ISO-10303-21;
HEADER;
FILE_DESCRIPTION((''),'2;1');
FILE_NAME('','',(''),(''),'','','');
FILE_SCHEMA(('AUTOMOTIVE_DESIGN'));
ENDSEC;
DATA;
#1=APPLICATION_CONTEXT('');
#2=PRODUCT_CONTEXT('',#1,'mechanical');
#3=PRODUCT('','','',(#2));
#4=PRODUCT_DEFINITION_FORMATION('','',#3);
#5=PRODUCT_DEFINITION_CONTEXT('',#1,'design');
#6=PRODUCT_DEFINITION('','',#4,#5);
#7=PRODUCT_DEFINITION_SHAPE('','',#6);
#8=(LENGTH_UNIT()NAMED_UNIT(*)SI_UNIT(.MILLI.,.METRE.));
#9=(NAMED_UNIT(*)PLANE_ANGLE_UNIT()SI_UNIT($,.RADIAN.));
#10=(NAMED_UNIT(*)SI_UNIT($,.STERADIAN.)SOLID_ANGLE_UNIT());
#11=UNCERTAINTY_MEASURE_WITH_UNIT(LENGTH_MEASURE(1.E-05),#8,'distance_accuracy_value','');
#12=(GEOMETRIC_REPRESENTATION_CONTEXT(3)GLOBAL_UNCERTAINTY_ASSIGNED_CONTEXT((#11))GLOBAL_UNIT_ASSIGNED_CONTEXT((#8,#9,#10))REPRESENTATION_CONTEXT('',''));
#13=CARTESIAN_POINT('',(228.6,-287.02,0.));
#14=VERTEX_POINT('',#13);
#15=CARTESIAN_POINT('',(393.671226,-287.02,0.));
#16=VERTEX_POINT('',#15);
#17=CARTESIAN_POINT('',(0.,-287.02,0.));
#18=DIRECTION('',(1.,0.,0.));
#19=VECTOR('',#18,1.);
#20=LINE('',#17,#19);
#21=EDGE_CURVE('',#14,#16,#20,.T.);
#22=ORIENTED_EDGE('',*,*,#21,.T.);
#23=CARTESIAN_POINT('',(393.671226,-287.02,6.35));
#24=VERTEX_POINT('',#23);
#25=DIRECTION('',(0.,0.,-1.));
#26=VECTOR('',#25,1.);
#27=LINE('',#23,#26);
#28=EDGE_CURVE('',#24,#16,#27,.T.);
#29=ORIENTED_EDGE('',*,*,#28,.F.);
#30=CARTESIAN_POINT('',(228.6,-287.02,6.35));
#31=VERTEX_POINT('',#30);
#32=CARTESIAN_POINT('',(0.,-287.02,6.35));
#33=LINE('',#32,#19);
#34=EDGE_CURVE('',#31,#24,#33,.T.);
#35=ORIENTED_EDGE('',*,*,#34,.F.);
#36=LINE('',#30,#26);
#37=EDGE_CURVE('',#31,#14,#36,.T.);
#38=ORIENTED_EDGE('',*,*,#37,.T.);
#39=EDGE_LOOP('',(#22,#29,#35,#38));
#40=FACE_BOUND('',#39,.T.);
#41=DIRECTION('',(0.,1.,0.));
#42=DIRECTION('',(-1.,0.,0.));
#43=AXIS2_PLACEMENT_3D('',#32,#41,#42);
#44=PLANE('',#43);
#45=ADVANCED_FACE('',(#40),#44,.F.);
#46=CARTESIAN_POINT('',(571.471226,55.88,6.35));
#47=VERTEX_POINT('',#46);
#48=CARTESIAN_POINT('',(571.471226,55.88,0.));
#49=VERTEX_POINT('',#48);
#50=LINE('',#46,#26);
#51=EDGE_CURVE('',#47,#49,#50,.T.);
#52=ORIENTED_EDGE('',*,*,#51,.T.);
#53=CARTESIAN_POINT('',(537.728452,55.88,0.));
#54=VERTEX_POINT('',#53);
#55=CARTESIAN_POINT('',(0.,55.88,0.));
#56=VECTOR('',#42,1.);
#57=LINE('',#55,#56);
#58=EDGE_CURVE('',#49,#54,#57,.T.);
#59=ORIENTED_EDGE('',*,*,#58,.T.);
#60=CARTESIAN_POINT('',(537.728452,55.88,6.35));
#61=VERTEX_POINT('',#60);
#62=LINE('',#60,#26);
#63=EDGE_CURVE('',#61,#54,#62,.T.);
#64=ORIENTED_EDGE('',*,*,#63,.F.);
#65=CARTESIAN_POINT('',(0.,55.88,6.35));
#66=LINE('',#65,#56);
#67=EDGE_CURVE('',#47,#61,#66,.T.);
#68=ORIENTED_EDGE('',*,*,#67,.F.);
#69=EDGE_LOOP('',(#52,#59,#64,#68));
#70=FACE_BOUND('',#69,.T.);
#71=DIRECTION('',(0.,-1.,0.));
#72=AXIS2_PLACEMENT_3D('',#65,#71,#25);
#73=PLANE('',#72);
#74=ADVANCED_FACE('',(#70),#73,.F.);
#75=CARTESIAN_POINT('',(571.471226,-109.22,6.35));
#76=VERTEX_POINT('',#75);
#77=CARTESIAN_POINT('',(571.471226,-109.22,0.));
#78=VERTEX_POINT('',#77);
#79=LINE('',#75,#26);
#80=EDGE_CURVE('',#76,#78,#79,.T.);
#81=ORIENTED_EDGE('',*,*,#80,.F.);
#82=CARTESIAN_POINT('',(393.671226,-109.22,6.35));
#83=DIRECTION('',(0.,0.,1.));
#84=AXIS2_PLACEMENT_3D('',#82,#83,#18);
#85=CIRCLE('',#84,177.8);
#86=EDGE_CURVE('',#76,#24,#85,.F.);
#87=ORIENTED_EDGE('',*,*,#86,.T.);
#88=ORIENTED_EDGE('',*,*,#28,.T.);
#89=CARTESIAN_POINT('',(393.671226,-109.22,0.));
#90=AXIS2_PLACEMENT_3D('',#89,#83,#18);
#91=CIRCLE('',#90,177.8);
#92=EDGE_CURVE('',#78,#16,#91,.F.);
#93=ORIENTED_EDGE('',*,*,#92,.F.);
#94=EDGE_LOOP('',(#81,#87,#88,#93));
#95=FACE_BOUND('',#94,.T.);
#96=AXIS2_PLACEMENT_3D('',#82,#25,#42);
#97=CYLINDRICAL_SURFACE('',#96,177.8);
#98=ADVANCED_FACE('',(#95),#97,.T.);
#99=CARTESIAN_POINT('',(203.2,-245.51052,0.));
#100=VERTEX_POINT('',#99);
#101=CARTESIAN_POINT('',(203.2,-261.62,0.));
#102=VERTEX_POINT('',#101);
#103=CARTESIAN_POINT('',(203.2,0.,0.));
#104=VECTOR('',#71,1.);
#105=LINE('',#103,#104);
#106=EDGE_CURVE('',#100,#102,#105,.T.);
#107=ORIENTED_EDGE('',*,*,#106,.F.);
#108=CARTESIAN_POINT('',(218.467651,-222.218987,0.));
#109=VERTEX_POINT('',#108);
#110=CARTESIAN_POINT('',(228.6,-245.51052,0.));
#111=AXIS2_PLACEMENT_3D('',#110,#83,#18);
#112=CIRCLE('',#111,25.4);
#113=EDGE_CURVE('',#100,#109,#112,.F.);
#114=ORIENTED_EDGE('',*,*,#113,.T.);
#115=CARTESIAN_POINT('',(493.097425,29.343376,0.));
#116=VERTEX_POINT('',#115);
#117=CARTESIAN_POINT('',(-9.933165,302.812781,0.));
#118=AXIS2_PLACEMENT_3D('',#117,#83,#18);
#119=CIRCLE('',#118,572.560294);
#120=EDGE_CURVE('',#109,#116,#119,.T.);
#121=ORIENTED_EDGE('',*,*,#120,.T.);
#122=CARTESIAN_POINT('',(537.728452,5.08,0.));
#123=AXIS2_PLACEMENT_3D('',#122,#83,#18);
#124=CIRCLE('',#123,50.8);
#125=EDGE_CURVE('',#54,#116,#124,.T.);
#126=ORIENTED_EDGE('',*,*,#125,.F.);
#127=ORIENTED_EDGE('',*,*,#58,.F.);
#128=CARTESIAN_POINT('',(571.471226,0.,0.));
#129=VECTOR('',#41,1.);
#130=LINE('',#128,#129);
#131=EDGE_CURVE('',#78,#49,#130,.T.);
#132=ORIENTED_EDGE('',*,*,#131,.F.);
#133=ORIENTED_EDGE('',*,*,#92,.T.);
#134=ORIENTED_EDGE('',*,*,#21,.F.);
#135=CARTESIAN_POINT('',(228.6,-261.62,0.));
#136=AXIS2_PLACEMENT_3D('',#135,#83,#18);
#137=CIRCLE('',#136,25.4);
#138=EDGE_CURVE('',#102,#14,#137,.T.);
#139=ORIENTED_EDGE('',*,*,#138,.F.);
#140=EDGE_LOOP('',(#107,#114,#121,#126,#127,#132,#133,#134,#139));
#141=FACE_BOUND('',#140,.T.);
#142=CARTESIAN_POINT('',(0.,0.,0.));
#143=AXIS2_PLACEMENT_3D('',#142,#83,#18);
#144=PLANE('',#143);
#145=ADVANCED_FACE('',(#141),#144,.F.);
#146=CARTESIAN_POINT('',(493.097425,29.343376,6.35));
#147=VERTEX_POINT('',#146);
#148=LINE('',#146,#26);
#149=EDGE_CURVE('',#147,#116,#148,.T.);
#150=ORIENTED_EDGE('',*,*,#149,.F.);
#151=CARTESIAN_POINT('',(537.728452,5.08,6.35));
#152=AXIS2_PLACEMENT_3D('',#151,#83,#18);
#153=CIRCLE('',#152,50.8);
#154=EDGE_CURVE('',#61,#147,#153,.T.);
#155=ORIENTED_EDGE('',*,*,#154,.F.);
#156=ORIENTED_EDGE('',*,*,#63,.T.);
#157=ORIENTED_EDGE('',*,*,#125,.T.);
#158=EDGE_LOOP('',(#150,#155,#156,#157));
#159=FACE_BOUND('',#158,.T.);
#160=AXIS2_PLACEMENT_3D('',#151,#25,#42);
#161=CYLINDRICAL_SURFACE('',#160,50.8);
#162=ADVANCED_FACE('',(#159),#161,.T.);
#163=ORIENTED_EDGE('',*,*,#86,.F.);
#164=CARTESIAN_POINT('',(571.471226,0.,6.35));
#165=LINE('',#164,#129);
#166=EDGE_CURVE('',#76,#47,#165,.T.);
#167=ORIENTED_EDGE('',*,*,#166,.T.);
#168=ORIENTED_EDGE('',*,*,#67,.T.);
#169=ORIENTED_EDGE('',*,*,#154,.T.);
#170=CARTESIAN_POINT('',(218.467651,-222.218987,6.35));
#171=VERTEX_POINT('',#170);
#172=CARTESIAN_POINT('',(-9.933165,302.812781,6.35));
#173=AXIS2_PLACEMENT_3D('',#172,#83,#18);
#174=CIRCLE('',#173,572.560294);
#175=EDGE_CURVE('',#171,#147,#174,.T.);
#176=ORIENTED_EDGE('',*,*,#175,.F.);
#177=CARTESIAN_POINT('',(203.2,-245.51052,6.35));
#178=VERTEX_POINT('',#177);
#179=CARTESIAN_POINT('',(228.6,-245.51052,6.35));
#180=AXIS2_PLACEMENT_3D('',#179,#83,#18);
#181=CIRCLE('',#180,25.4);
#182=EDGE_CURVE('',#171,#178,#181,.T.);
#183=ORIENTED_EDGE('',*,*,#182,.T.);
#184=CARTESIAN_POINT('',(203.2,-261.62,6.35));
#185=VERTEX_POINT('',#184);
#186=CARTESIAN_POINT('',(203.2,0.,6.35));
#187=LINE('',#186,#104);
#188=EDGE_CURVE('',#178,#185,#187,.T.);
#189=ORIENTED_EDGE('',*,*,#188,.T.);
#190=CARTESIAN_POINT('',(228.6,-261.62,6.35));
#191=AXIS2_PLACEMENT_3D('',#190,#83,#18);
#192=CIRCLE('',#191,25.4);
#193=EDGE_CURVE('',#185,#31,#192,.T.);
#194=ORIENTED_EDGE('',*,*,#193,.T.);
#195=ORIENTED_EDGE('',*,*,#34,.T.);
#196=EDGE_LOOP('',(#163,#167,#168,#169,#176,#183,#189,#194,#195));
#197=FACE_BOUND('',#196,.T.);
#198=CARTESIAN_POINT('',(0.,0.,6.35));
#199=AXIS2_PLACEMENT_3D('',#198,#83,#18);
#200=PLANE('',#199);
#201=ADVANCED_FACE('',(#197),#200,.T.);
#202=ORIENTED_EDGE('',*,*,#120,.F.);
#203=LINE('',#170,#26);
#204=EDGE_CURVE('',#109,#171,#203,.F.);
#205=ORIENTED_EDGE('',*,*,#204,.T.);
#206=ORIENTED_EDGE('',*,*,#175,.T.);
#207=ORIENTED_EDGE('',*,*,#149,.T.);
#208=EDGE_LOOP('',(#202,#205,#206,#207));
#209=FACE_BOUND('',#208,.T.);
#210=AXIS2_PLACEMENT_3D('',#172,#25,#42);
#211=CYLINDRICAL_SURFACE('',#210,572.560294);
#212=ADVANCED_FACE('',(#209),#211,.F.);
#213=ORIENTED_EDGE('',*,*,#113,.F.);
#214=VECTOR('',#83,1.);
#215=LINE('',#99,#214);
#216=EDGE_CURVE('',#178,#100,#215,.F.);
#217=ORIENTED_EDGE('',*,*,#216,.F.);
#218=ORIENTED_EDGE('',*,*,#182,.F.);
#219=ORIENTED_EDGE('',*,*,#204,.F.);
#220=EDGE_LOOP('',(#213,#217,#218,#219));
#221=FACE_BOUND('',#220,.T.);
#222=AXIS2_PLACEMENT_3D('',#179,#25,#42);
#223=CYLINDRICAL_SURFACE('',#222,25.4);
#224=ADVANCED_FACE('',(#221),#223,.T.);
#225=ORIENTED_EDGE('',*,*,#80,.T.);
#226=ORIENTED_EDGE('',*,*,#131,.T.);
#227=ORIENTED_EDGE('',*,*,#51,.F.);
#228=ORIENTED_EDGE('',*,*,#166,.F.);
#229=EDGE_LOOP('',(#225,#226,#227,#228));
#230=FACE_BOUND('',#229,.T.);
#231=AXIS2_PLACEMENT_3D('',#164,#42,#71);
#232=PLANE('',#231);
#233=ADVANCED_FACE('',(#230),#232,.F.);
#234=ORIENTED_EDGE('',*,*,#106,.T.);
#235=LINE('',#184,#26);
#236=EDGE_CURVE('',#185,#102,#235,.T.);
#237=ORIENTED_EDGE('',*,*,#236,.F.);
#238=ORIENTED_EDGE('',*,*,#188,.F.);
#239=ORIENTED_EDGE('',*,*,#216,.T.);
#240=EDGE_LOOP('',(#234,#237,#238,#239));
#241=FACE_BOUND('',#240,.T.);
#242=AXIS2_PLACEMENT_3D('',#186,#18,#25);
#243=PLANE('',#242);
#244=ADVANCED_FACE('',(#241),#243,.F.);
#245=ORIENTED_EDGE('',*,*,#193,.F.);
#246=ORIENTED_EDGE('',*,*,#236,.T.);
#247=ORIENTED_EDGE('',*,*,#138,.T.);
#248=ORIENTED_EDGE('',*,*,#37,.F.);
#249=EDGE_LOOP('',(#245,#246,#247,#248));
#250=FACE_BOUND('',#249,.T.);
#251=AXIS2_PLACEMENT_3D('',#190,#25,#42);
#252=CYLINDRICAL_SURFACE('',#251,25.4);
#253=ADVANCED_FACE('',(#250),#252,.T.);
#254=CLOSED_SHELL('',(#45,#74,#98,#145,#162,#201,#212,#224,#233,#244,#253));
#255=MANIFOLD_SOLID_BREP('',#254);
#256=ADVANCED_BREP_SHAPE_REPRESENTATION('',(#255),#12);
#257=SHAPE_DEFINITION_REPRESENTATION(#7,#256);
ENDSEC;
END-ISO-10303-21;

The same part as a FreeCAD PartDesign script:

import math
import FreeCAD as App
import Part
import Sketcher

V = App.Vector
Q = App.Units.Quantity


def edges_at(feature, points):
    """Names of the edges that pass closest to the given points."""
    edges = feature.Shape.Edges
    near = lambda p: min(range(len(edges)), key=lambda i: edges[i].distToShape(Part.Vertex(*p))[0])
    return sorted({f"Edge{near(p) + 1}" for p in points})

doc = App.newDocument("Part")
body = doc.addObject("PartDesign::Body", "Body")

# Sketch on XY plane
sketch1 = body.newObject("Sketcher::SketchObject", "Sketch")
sketch1.AttachmentSupport = (doc.getObject("XY_Plane"), [""])
sketch1.MapMode = "FlatFace"
sketch1.addGeometry(Part.LineSegment(V(203.2, -228.6, 0), V(203.2, -261.62, 0)), False)
sketch1.addGeometry(Part.ArcOfCircle(Part.Circle(V(228.6, -261.62, 0), V(0, 0, 1), 25.4), math.radians(180), math.radians(270)), False)
sketch1.addGeometry(Part.LineSegment(V(228.6, -287.02, 0), V(393.671226, -287.02, 0)), False)
sketch1.addGeometry(Part.ArcOfCircle(Part.Circle(V(393.671226, -109.22, 0), V(0, 0, 1), 177.8), math.radians(-90), math.radians(0)), False)
sketch1.addGeometry(Part.LineSegment(V(571.471226, -109.22, 0), V(571.471226, 55.88, 0)), False)
sketch1.addGeometry(Part.LineSegment(V(571.471226, 55.88, 0), V(537.728452, 55.88, 0)), False)
sketch1.addGeometry(Part.ArcOfCircle(Part.Circle(V(537.728452, 5.08, 0), V(0, 0, 1), 50.8), math.radians(90), math.radians(151.469565)), False)
sketch1.addGeometry(Part.ArcOfCircle(Part.Circle(V(-9.933165, 302.812781, 0), V(0, 0, 1), 572.560294), math.radians(-68.145812), math.radians(-28.530435)), False)
sketch1.addConstraint(Sketcher.Constraint("Tangent", 0, 2, 1, 1))
sketch1.addConstraint(Sketcher.Constraint("Tangent", 1, 2, 2, 1))
sketch1.addConstraint(Sketcher.Constraint("Tangent", 2, 2, 3, 1))
sketch1.addConstraint(Sketcher.Constraint("Tangent", 3, 2, 4, 1))
sketch1.addConstraint(Sketcher.Constraint("Coincident", 4, 2, 5, 1))
sketch1.addConstraint(Sketcher.Constraint("Tangent", 5, 2, 6, 1))
sketch1.addConstraint(Sketcher.Constraint("Tangent", 6, 2, 7, 2))
sketch1.addConstraint(Sketcher.Constraint("Coincident", 7, 1, 0, 1))
sketch1.addConstraint(Sketcher.Constraint("Vertical", 0))
sketch1.addConstraint(Sketcher.Constraint("Horizontal", 2))
sketch1.addConstraint(Sketcher.Constraint("Vertical", 4))
sketch1.addConstraint(Sketcher.Constraint("Horizontal", 5))
sketch1.addConstraint(Sketcher.Constraint("Radius", 1, Q("1 in")))
sketch1.addConstraint(Sketcher.Constraint("Radius", 3, Q("7 in")))
sketch1.addConstraint(Sketcher.Constraint("Radius", 6, Q("2 in")))
sketch1.addConstraint(Sketcher.Constraint("DistanceY", 0, 2, 0, 1, Q("1.3 in")))
sketch1.addConstraint(Sketcher.Constraint("DistanceY", 4, 1, 4, 2, Q("6.5 in")))
sketch1.addConstraint(Sketcher.Constraint("DistanceX", -1, 1, 1, 3, Q("9 in")))
sketch1.addConstraint(Sketcher.Constraint("DistanceY", 1, 3, -1, 1, Q("10.3 in")))
sketch1.addConstraint(Sketcher.Constraint("Radius", 7, 572.560294))
sketch1.addConstraint(Sketcher.Constraint("DistanceX", 6, 2, 4, 2, 78.373801))
sketch1.addConstraint(Sketcher.Constraint("DistanceX", 2, 1, 2, 2, 165.071226))
pad1 = body.newObject("PartDesign::Pad", "Pad")
pad1.Profile = sketch1
pad1.Length = Q("0.25 in")
doc.recompute()

fillet = body.newObject("PartDesign::Fillet", "Fillet")
fillet.Base = (pad1, edges_at(pad1, [(203.2, -228.6, 3.175)]))
fillet.Radius = Q("1 in")

doc.recompute()
